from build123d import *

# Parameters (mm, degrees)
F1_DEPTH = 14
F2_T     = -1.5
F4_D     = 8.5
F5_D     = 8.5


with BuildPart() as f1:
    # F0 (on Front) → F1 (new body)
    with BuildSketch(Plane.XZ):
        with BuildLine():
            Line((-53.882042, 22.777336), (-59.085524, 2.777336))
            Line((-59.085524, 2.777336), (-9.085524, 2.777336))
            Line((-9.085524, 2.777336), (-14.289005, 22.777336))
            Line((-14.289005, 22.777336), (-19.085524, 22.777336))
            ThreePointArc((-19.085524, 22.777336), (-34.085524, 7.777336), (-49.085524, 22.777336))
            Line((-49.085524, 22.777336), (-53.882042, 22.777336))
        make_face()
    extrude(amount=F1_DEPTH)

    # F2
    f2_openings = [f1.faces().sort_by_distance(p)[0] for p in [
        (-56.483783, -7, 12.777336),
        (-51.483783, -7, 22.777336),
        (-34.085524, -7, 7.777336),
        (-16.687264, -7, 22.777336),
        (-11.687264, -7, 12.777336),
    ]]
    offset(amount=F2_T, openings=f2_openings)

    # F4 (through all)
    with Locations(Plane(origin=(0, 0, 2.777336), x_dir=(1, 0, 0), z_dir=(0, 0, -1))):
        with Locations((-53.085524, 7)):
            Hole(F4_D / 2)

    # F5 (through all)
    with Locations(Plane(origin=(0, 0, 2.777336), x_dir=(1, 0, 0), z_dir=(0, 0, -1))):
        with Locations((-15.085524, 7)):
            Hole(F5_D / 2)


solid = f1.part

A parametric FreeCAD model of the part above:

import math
import FreeCAD as App
import Part
import Sketcher
Q = App.Units.Quantity


def faces_at(feature, points):
    """Names of the faces that lie closest to the given points."""
    faces = feature.Shape.Faces
    near = lambda p: min(range(len(faces)), key=lambda i: faces[i].distToShape(Part.Vertex(*p))[0])
    return sorted({f"Face{near(p) + 1}" for p in points})

doc = App.newDocument("Part")
body = doc.addObject("PartDesign::Body", "Body")

sketch1 = doc.addObject("Sketcher::SketchObject", "Sketch")
body.addObject(sketch1)
sketch1.AttachmentSupport = (doc.XZ_Plane, [""])
sketch1.MapMode = "FlatFace"
sketch1.addGeometry(Part.LineSegment(App.Vector(-53.9, 22.8, 0), App.Vector(-59.1, 2.8, 0)), False)
sketch1.addGeometry(Part.LineSegment(App.Vector(-59.1, 2.8, 0), App.Vector(-9.1, 2.8, 0)), False)
sketch1.addGeometry(Part.LineSegment(App.Vector(-9.1, 2.8, 0), App.Vector(-14.3, 22.8, 0)), False)
sketch1.addGeometry(Part.LineSegment(App.Vector(-14.3, 22.8, 0), App.Vector(-19.1, 22.8, 0)), False)
sketch1.addGeometry(Part.ArcOfCircle(Part.Circle(App.Vector(-34.1, 22.8, 0), App.Vector(0, 0, 1), 15), math.radians(180), math.radians(360)), False)
sketch1.addGeometry(Part.LineSegment(App.Vector(-49.1, 22.8, 0), App.Vector(-53.9, 22.8, 0)), False)
sketch1.addConstraint(Sketcher.Constraint("Coincident", 0, 2, 1, 1))
sketch1.addConstraint(Sketcher.Constraint("Coincident", 1, 2, 2, 1))
sketch1.addConstraint(Sketcher.Constraint("Coincident", 2, 2, 3, 1))
sketch1.addConstraint(Sketcher.Constraint("Coincident", 3, 2, 4, 2))
sketch1.addConstraint(Sketcher.Constraint("Coincident", 4, 1, 5, 1))
sketch1.addConstraint(Sketcher.Constraint("Coincident", 5, 2, 0, 1))
sketch1.addConstraint(Sketcher.Constraint("Horizontal", 1))
sketch1.addConstraint(Sketcher.Constraint("Horizontal", 3))
sketch1.addConstraint(Sketcher.Constraint("Horizontal", 5))
sketch1.addConstraint(Sketcher.Constraint("Horizontal", 4, 3, 2, 2))
sketch1.addConstraint(Sketcher.Constraint("Horizontal", 3, 2, 4, 1))
sketch1.addConstraint(Sketcher.Constraint("Equal", 3, 5))
sketch1.addConstraint(Sketcher.Constraint("Equal", 0, 2))
sketch1.addConstraint(Sketcher.Constraint("Radius", 4, Q("15 mm")))
sketch1.addConstraint(Sketcher.Constraint("DistanceX", 1, 1, 1, 2, Q("50 mm")))
sketch1.addConstraint(Sketcher.Constraint("DistanceY", 0, 2, 4, 3, Q("20 mm")))
sketch1.addConstraint(Sketcher.Constraint("DistanceX", 3, 2, 3, 1, Q("4.796519 mm")))
sketch1.addConstraint(Sketcher.Constraint("DistanceX", 5, 2, -1, 1, Q("53.882042 mm")))
sketch1.addConstraint(Sketcher.Constraint("DistanceY", -1, 1, 4, 3, Q("22.777336 mm")))
pad1 = doc.addObject("PartDesign::Pad", "Pad")
body.addObject(pad1)
pad1.Profile = sketch1
pad1.Length = 14
doc.recompute()

thickness = doc.addObject("PartDesign::Thickness", "Thickness")
body.addObject(thickness)
thickness.Base = (pad1, faces_at(pad1, [
    (-56.484, -7, 12.777),
    (-51.484, -7, 22.777),
    (-34.086, -7, 7.777),
    (-16.687, -7, 22.777),
    (-11.687, -7, 12.777),
]))
thickness.Value = 1.5
thickness.Reversed = True
thickness.Join = "Arc"

sketch2 = doc.addObject("Sketcher::SketchObject", "Sketch001")
body.addObject(sketch2)
sketch2.AttachmentSupport = (doc.XY_Plane, [""])
sketch2.MapMode = "FlatFace"
sketch2.AttachmentOffset = App.Placement(App.Vector(0, 0, 2.777336), App.Rotation())
sketch2.addGeometry(Part.Circle(App.Vector(-53.1, -7, 0), App.Vector(0, 0, 1), 4.2), False)
sketch2.addConstraint(Sketcher.Constraint("Diameter", 0, Q("8.5 mm")))
sketch2.addConstraint(Sketcher.Constraint("DistanceY", 0, 3, -1, 1, Q("7 mm")))
sketch2.addConstraint(Sketcher.Constraint("DistanceX", 0, 3, -1, 1, Q("53.085524 mm")))
doc.recompute()
hole = doc.addObject("PartDesign::Hole", "Hole")
body.addObject(hole)
hole.Profile = sketch2
hole.ThreadType = "None"
hole.Diameter = 8.5
hole.DepthType = "ThroughAll"
hole.Reversed = True

sketch3 = doc.addObject("Sketcher::SketchObject", "Sketch002")
body.addObject(sketch3)
sketch3.AttachmentSupport = (doc.XY_Plane, [""])
sketch3.MapMode = "FlatFace"
sketch3.AttachmentOffset = App.Placement(App.Vector(0, 0, 2.777336), App.Rotation())
sketch3.addGeometry(Part.Circle(App.Vector(-15.1, -7, 0), App.Vector(0, 0, 1), 4.2), False)
sketch3.addConstraint(Sketcher.Constraint("Diameter", 0, Q("8.5 mm")))
sketch3.addConstraint(Sketcher.Constraint("DistanceY", 0, 3, -1, 1, Q("7 mm")))
sketch3.addConstraint(Sketcher.Constraint("DistanceX", 0, 3, -1, 1, Q("15.085524 mm")))
doc.recompute()
hole2 = doc.addObject("PartDesign::Hole", "Hole001")
body.addObject(hole2)
hole2.Profile = sketch3
hole2.ThreadType = "None"
hole2.Diameter = 8.5
hole2.DepthType = "ThroughAll"
hole2.Reversed = True

doc.recompute()
